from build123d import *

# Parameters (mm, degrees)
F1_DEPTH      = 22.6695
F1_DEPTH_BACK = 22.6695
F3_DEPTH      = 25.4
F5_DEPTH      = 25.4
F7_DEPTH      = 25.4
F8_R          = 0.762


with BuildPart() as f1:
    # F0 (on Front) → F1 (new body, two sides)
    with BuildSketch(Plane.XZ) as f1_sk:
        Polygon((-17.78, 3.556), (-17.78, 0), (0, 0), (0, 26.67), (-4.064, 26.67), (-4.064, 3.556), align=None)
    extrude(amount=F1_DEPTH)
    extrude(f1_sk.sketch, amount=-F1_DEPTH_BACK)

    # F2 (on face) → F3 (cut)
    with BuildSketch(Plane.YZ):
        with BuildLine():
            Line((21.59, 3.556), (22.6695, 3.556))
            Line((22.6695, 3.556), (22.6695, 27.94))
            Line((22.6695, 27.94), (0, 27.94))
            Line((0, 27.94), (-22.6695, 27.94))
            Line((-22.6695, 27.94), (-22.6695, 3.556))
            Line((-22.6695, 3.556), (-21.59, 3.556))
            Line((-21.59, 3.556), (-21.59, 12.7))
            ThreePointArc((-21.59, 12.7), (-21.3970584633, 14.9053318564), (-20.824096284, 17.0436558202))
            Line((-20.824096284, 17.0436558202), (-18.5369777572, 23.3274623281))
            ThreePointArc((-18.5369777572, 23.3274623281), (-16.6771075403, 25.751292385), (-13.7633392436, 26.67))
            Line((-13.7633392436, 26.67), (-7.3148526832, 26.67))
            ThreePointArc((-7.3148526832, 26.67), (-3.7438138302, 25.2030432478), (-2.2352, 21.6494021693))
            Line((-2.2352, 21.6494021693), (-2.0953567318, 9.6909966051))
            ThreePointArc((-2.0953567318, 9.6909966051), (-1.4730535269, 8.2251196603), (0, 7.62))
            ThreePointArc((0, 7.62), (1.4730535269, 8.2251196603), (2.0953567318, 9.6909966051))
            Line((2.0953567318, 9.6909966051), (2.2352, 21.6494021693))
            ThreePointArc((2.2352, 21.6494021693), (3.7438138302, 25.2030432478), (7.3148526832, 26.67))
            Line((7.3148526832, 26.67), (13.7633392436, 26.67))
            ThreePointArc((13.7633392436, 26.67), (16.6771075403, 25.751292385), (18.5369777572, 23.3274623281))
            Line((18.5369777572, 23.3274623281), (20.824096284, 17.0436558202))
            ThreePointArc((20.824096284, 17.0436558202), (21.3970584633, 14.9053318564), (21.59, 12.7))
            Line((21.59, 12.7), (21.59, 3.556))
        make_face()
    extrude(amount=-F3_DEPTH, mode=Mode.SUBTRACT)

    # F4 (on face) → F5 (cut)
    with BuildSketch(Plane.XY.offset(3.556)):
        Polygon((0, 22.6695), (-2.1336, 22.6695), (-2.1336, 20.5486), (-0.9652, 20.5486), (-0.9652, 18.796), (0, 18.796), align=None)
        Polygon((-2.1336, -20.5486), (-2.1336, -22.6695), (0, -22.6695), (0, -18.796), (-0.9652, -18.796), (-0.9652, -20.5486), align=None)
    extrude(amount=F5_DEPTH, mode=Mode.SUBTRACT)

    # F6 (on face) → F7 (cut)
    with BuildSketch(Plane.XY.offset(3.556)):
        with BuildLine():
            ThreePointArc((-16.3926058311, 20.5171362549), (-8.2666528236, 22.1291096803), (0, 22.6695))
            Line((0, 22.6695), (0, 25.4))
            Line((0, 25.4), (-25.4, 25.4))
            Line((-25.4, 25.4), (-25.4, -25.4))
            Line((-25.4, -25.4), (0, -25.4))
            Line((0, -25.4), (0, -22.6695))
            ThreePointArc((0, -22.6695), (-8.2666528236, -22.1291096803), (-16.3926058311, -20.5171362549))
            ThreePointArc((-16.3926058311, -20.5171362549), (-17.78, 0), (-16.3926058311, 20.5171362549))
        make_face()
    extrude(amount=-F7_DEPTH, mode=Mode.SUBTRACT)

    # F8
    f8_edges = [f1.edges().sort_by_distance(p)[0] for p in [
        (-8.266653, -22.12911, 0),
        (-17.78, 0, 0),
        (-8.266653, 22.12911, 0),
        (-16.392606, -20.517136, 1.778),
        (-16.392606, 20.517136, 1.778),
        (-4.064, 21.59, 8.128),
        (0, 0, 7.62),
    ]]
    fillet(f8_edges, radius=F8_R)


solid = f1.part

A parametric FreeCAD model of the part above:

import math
import FreeCAD as App
import Part
import Sketcher

V = App.Vector
Q = App.Units.Quantity


def edges_at(feature, points):
    """Names of the edges that pass closest to the given points."""
    edges = feature.Shape.Edges
    near = lambda p: min(range(len(edges)), key=lambda i: edges[i].distToShape(Part.Vertex(*p))[0])
    return sorted({f"Edge{near(p) + 1}" for p in points})

doc = App.newDocument("Part")
body = doc.addObject("PartDesign::Body", "Body")

# Sketch on XZ plane
sketch1 = body.newObject("Sketcher::SketchObject", "Sketch")
sketch1.AttachmentSupport = (doc.getObject("XZ_Plane"), [""])
sketch1.MapMode = "FlatFace"
sketch1.addGeometry(Part.LineSegment(V(-17.8, 3.6, 0), V(-17.8, 0, 0)), False)
sketch1.addGeometry(Part.LineSegment(V(-17.8, 0, 0), V(0, 0, 0)), False)
sketch1.addGeometry(Part.LineSegment(V(0, 0, 0), V(0, 26.7, 0)), False)
sketch1.addGeometry(Part.LineSegment(V(0, 26.7, 0), V(-4.1, 26.7, 0)), False)
sketch1.addGeometry(Part.LineSegment(V(-4.1, 26.7, 0), V(-4.1, 3.6, 0)), False)
sketch1.addGeometry(Part.LineSegment(V(-4.1, 3.6, 0), V(-17.8, 3.6, 0)), False)
sketch1.addConstraint(Sketcher.Constraint("Coincident", 0, 2, 1, 1))
sketch1.addConstraint(Sketcher.Constraint("Coincident", 1, 2, 2, 1))
sketch1.addConstraint(Sketcher.Constraint("Coincident", 2, 2, 3, 1))
sketch1.addConstraint(Sketcher.Constraint("Coincident", 3, 2, 4, 1))
sketch1.addConstraint(Sketcher.Constraint("Coincident", 4, 2, 5, 1))
sketch1.addConstraint(Sketcher.Constraint("Coincident", 5, 2, 0, 1))
sketch1.addConstraint(Sketcher.Constraint("Vertical", 0))
sketch1.addConstraint(Sketcher.Constraint("Horizontal", 1))
sketch1.addConstraint(Sketcher.Constraint("Vertical", 2))
sketch1.addConstraint(Sketcher.Constraint("Horizontal", 3))
sketch1.addConstraint(Sketcher.Constraint("Vertical", 4))
sketch1.addConstraint(Sketcher.Constraint("Horizontal", 5))
sketch1.addConstraint(Sketcher.Constraint("Coincident", 1, 2, -1, 1))
sketch1.addConstraint(Sketcher.Constraint("DistanceX", 1, 1, 1, 2, Q("0.7 in")))
sketch1.addConstraint(Sketcher.Constraint("DistanceX", 3, 2, 3, 1, Q("0.16 in")))
sketch1.addConstraint(Sketcher.Constraint("DistanceY", 0, 2, 0, 1, Q("0.14 in")))
sketch1.addConstraint(Sketcher.Constraint("DistanceY", 2, 1, 2, 2, Q("1.05 in")))
pad1 = body.newObject("PartDesign::Pad", "Pad")
pad1.Profile = sketch1
pad1.Type = "TwoLengths"
pad1.Length = Q("0.8925 in")
pad1.Length2 = Q("0.8925 in")

# Sketch on YZ plane
sketch2 = body.newObject("Sketcher::SketchObject", "Sketch001")
sketch2.AttachmentSupport = (doc.getObject("YZ_Plane"), [""])
sketch2.MapMode = "FlatFace"
sketch2.addGeometry(Part.LineSegment(V(21.6, 3.6, 0), V(22.7, 3.6, 0)), False)
sketch2.addGeometry(Part.LineSegment(V(22.7, 3.6, 0), V(22.7, 27.9, 0)), False)
sketch2.addGeometry(Part.LineSegment(V(22.7, 27.9, 0), V(-22.7, 27.9, 0)), False)
sketch2.addGeometry(Part.LineSegment(V(-22.7, 27.9, 0), V(-22.7, 3.6, 0)), False)
sketch2.addGeometry(Part.LineSegment(V(-22.7, 3.6, 0), V(-21.6, 3.6, 0)), False)
sketch2.addGeometry(Part.LineSegment(V(-21.6, 3.6, 0), V(-21.6, 12.7, 0)), False)
sketch2.addGeometry(Part.ArcOfCircle(Part.Circle(V(-8.9, 12.7, 0), V(0, 0, 1), 12.7), math.radians(160), math.radians(180)), False)
sketch2.addGeometry(Part.LineSegment(V(-20.8, 17, 0), V(-18.5, 23.3, 0)), False)
sketch2.addGeometry(Part.ArcOfCircle(Part.Circle(V(-13.8, 21.6, 0), V(0, 0, 1), 5.1), math.radians(90), math.radians(160)), False)
sketch2.addGeometry(Part.LineSegment(V(-13.8, 26.7, 0), V(-7.3, 26.7, 0)), False)
sketch2.addGeometry(Part.ArcOfCircle(Part.Circle(V(-7.3, 21.6, 0), V(0, 0, 1), 5.1), math.radians(1), math.radians(90)), False)
sketch2.addGeometry(Part.LineSegment(V(-2.2, 21.6, 0), V(-2.1, 9.7, 0)), False)
sketch2.addGeometry(Part.ArcOfCircle(Part.Circle(V(0, 9.7, 0), V(0, 0, 1), 2.1), math.radians(-179), math.radians(-90)), False)
sketch2.addGeometry(Part.ArcOfCircle(Part.Circle(V(0, 9.7, 0), V(0, 0, 1), 2.1), math.radians(-90), math.radians(-1)), False)
sketch2.addGeometry(Part.LineSegment(V(2.1, 9.7, 0), V(2.2, 21.6, 0)), False)
sketch2.addGeometry(Part.ArcOfCircle(Part.Circle(V(7.3, 21.6, 0), V(0, 0, 1), 5.1), math.radians(90), math.radians(179)), False)
sketch2.addGeometry(Part.LineSegment(V(7.3, 26.7, 0), V(13.8, 26.7, 0)), False)
sketch2.addGeometry(Part.ArcOfCircle(Part.Circle(V(13.8, 21.6, 0), V(0, 0, 1), 5.1), math.radians(20), math.radians(90)), False)
sketch2.addGeometry(Part.LineSegment(V(18.5, 23.3, 0), V(20.8, 17, 0)), False)
sketch2.addGeometry(Part.ArcOfCircle(Part.Circle(V(8.9, 12.7, 0), V(0, 0, 1), 12.7), math.radians(0), math.radians(20)), False)
sketch2.addGeometry(Part.LineSegment(V(21.6, 12.7, 0), V(21.6, 3.6, 0)), False)
sketch2.addConstraint(Sketcher.Constraint("Coincident", 0, 2, 1, 1))
sketch2.addConstraint(Sketcher.Constraint("Coincident", 1, 2, 2, 1))
sketch2.addConstraint(Sketcher.Constraint("Coincident", 2, 2, 3, 1))
sketch2.addConstraint(Sketcher.Constraint("Coincident", 3, 2, 4, 1))
sketch2.addConstraint(Sketcher.Constraint("Coincident", 4, 2, 5, 1))
sketch2.addConstraint(Sketcher.Constraint("Tangent", 5, 2, 6, 2))
sketch2.addConstraint(Sketcher.Constraint("Tangent", 6, 1, 7, 1))
sketch2.addConstraint(Sketcher.Constraint("Tangent", 7, 2, 8, 2))
sketch2.addConstraint(Sketcher.Constraint("Tangent", 8, 1, 9, 1))
sketch2.addConstraint(Sketcher.Constraint("Tangent", 9, 2, 10, 2))
sketch2.addConstraint(Sketcher.Constraint("Tangent", 10, 1, 11, 1))
sketch2.addConstraint(Sketcher.Constraint("Tangent", 11, 2, 12, 1))
sketch2.addConstraint(Sketcher.Constraint("Tangent", 12, 2, 13, 1))
sketch2.addConstraint(Sketcher.Constraint("Tangent", 13, 2, 14, 1))
sketch2.addConstraint(Sketcher.Constraint("Tangent", 14, 2, 15, 2))
sketch2.addConstraint(Sketcher.Constraint("Tangent", 15, 1, 16, 1))
sketch2.addConstraint(Sketcher.Constraint("Tangent", 16, 2, 17, 2))
sketch2.addConstraint(Sketcher.Constraint("Tangent", 17, 1, 18, 1))
sketch2.addConstraint(Sketcher.Constraint("Tangent", 18, 2, 19, 2))
sketch2.addConstraint(Sketcher.Constraint("Tangent", 19, 1, 20, 1))
sketch2.addConstraint(Sketcher.Constraint("Coincident", 20, 2, 0, 1))
sketch2.addConstraint(Sketcher.Constraint("Horizontal", 0))
sketch2.addConstraint(Sketcher.Constraint("Vertical", 1))
sketch2.addConstraint(Sketcher.Constraint("Horizontal", 2))
sketch2.addConstraint(Sketcher.Constraint("Vertical", 3))
sketch2.addConstraint(Sketcher.Constraint("Horizontal", 4))
sketch2.addConstraint(Sketcher.Constraint("Vertical", 5))
sketch2.addConstraint(Sketcher.Constraint("Horizontal", 9))
sketch2.addConstraint(Sketcher.Constraint("Horizontal", 16))
sketch2.addConstraint(Sketcher.Constraint("Vertical", 20))
sketch2.addConstraint(Sketcher.Constraint("Equal", 8, 10))
sketch2.addConstraint(Sketcher.Constraint("Equal", 12, 13))
sketch2.addConstraint(Sketcher.Constraint("Equal", 10, 15))
sketch2.addConstraint(Sketcher.Constraint("Equal", 15, 17))
sketch2.addConstraint(Sketcher.Constraint("Equal", 6, 19))
sketch2.addConstraint(Sketcher.Constraint("Symmetric", 10, 3, 15, 3, -2))
sketch2.addConstraint(Sketcher.Constraint("Symmetric", 6, 3, 19, 3, -2))
sketch2.addConstraint(Sketcher.Constraint("Symmetric", 0, 2, 3, 2, -2))
sketch2.addConstraint(Sketcher.Constraint("PointOnObject", 12, 3, -2))
sketch2.addConstraint(Sketcher.Constraint("PointOnObject", 12, 2, -2))
sketch2.addConstraint(Sketcher.Constraint("Horizontal", 7, 2, 17, 1))
sketch2.addConstraint(Sketcher.Constraint("Radius", 6, Q("0.5 in")))
sketch2.addConstraint(Sketcher.Constraint("Radius", 8, Q("0.2 in")))
sketch2.addConstraint(Sketcher.Constraint("Angle", 7, Q("70 deg")))
sketch2.addConstraint(Sketcher.Constraint("DistanceY", 1, 1, 1, 2, Q("0.96 in")))
sketch2.addConstraint(Sketcher.Constraint("DistanceY", 5, 1, 5, 2, Q("0.36 in")))
sketch2.addConstraint(Sketcher.Constraint("DistanceY", -1, 1, 6, 3, Q("0.5 in")))
sketch2.addConstraint(Sketcher.Constraint("DistanceY", -1, 1, 12, 2, Q("0.3 in")))
sketch2.addConstraint(Sketcher.Constraint("Radius", 12, Q("0.0825 in")))
sketch2.addConstraint(Sketcher.Constraint("DistanceX", 6, 3, 19, 3, Q("0.7 in")))
sketch2.addConstraint(Sketcher.Constraint("DistanceX", 2, 2, 2, 1, Q("1.785 in")))
sketch2.addConstraint(Sketcher.Constraint("DistanceY", -1, 1, 8, 3, Q("0.85 in")))
sketch2.addConstraint(Sketcher.Constraint("Angle", 11, Q("-89.330006 deg")))
pocket1 = body.newObject("PartDesign::Pocket", "Pocket")
pocket1.Profile = sketch2
pocket1.Length = Q("1 in")

# Sketch on XY plane
sketch3 = body.newObject("Sketcher::SketchObject", "Sketch002")
sketch3.AttachmentSupport = (doc.getObject("XY_Plane"), [""])
sketch3.MapMode = "FlatFace"
sketch3.AttachmentOffset = App.Placement(V(0, 0, 0.14 * 25.4), App.Rotation())
sketch3.addGeometry(Part.LineSegment(V(0, 22.7, 0), V(-2.1, 22.7, 0)), False)
sketch3.addGeometry(Part.LineSegment(V(-2.1, 22.7, 0), V(-2.1, 20.5, 0)), False)
sketch3.addGeometry(Part.LineSegment(V(-2.1, 20.5, 0), V(-1, 20.5, 0)), False)
sketch3.addGeometry(Part.LineSegment(V(-1, 20.5, 0), V(-1, 18.8, 0)), False)
sketch3.addGeometry(Part.LineSegment(V(-1, 18.8, 0), V(0, 18.8, 0)), False)
sketch3.addGeometry(Part.LineSegment(V(0, 18.8, 0), V(0, 22.7, 0)), False)
sketch3.addGeometry(Part.LineSegment(V(-2.1, -20.5, 0), V(-2.1, -22.7, 0)), False)
sketch3.addGeometry(Part.LineSegment(V(-2.1, -22.7, 0), V(0, -22.7, 0)), False)
sketch3.addGeometry(Part.LineSegment(V(0, -22.7, 0), V(0, -18.8, 0)), False)
sketch3.addGeometry(Part.LineSegment(V(0, -18.8, 0), V(-1, -18.8, 0)), False)
sketch3.addGeometry(Part.LineSegment(V(-1, -18.8, 0), V(-1, -20.5, 0)), False)
sketch3.addGeometry(Part.LineSegment(V(-1, -20.5, 0), V(-2.1, -20.5, 0)), False)
sketch3.addConstraint(Sketcher.Constraint("Coincident", 0, 2, 1, 1))
sketch3.addConstraint(Sketcher.Constraint("Coincident", 1, 2, 2, 1))
sketch3.addConstraint(Sketcher.Constraint("Coincident", 2, 2, 3, 1))
sketch3.addConstraint(Sketcher.Constraint("Coincident", 3, 2, 4, 1))
sketch3.addConstraint(Sketcher.Constraint("Coincident", 4, 2, 5, 1))
sketch3.addConstraint(Sketcher.Constraint("Coincident", 5, 2, 0, 1))
sketch3.addConstraint(Sketcher.Constraint("Coincident", 6, 2, 7, 1))
sketch3.addConstraint(Sketcher.Constraint("Coincident", 7, 2, 8, 1))
sketch3.addConstraint(Sketcher.Constraint("Coincident", 8, 2, 9, 1))
sketch3.addConstraint(Sketcher.Constraint("Coincident", 9, 2, 10, 1))
sketch3.addConstraint(Sketcher.Constraint("Coincident", 10, 2, 11, 1))
sketch3.addConstraint(Sketcher.Constraint("Coincident", 11, 2, 6, 1))
sketch3.addConstraint(Sketcher.Constraint("Horizontal", 0))
sketch3.addConstraint(Sketcher.Constraint("Vertical", 1))
sketch3.addConstraint(Sketcher.Constraint("Horizontal", 2))
sketch3.addConstraint(Sketcher.Constraint("Vertical", 3))
sketch3.addConstraint(Sketcher.Constraint("Horizontal", 4))
sketch3.addConstraint(Sketcher.Constraint("Vertical", 5))
sketch3.addConstraint(Sketcher.Constraint("Vertical", 6))
sketch3.addConstraint(Sketcher.Constraint("Horizontal", 7))
sketch3.addConstraint(Sketcher.Constraint("Vertical", 8))
sketch3.addConstraint(Sketcher.Constraint("Horizontal", 9))
sketch3.addConstraint(Sketcher.Constraint("Vertical", 10))
sketch3.addConstraint(Sketcher.Constraint("Horizontal", 11))
sketch3.addConstraint(Sketcher.Constraint("Symmetric", 5, 2, 7, 2, -1, 1))
sketch3.addConstraint(Sketcher.Constraint("Symmetric", 4, 2, 8, 2, -1))
sketch3.addConstraint(Sketcher.Constraint("Symmetric", 2, 2, 10, 2, -1))
sketch3.addConstraint(Sketcher.Constraint("Vertical", 1, 2, 6, 2))
sketch3.addConstraint(Sketcher.Constraint("DistanceX", 0, 2, 0, 1, Q("0.084 in")))
sketch3.addConstraint(Sketcher.Constraint("DistanceX", 2, 1, 2, 2, Q("0.046 in")))
sketch3.addConstraint(Sketcher.Constraint("DistanceY", 3, 2, 3, 1, Q("0.069 in")))
sketch3.addConstraint(Sketcher.Constraint("DistanceY", -1, 1, 3, 2, Q("0.74 in")))
sketch3.addConstraint(Sketcher.Constraint("DistanceY", 1, 2, 1, 1, Q("0.0835 in")))
pocket2 = body.newObject("PartDesign::Pocket", "Pocket001")
pocket2.Profile = sketch3
pocket2.Length = Q("1 in")
pocket2.Reversed = True

# Sketch on XY plane
sketch4 = body.newObject("Sketcher::SketchObject", "Sketch003")
sketch4.AttachmentSupport = (doc.getObject("XY_Plane"), [""])
sketch4.MapMode = "FlatFace"
sketch4.AttachmentOffset = App.Placement(V(0, 0, 0.14 * 25.4), App.Rotation())
sketch4.addGeometry(Part.ArcOfCircle(Part.Circle(V(0, -40.8, 0), V(0, 0, 1), 63.5), math.radians(90), math.radians(104.96)), False)
sketch4.addGeometry(Part.LineSegment(V(0, 22.7, 0), V(0, 25.4, 0)), False)
sketch4.addGeometry(Part.LineSegment(V(0, 25.4, 0), V(-25.4, 25.4, 0)), False)
sketch4.addGeometry(Part.LineSegment(V(-25.4, 25.4, 0), V(-25.4, -25.4, 0)), False)
sketch4.addGeometry(Part.LineSegment(V(-25.4, -25.4, 0), V(0, -25.4, 0)), False)
sketch4.addGeometry(Part.LineSegment(V(0, -25.4, 0), V(0, -22.7, 0)), False)
sketch4.addGeometry(Part.ArcOfCircle(Part.Circle(V(0, 40.8, 0), V(0, 0, 1), 63.5), math.radians(-104.96), math.radians(-90)), False)
sketch4.addGeometry(Part.ArcOfCircle(Part.Circle(V(134.6, 0, 0), V(0, 0, 1), 152.4), math.radians(172.26), math.radians(187.74)), False)
sketch4.addConstraint(Sketcher.Constraint("Coincident", 0, 1, 1, 1))
sketch4.addConstraint(Sketcher.Constraint("Coincident", 1, 2, 2, 1))
sketch4.addConstraint(Sketcher.Constraint("Coincident", 2, 2, 3, 1))
sketch4.addConstraint(Sketcher.Constraint("Coincident", 3, 2, 4, 1))
sketch4.addConstraint(Sketcher.Constraint("Coincident", 4, 2, 5, 1))
sketch4.addConstraint(Sketcher.Constraint("Coincident", 5, 2, 6, 2))
sketch4.addConstraint(Sketcher.Constraint("Coincident", 6, 1, 7, 2))
sketch4.addConstraint(Sketcher.Constraint("Coincident", 7, 1, 0, 2))
sketch4.addConstraint(Sketcher.Constraint("Vertical", 1))
sketch4.addConstraint(Sketcher.Constraint("Horizontal", 2))
sketch4.addConstraint(Sketcher.Constraint("Vertical", 3))
sketch4.addConstraint(Sketcher.Constraint("Horizontal", 4))
sketch4.addConstraint(Sketcher.Constraint("Vertical", 5))
sketch4.addConstraint(Sketcher.Constraint("Equal", 0, 6))
sketch4.addConstraint(Sketcher.Constraint("Symmetric", 0, 3, 6, 3, -1, 1))
sketch4.addConstraint(Sketcher.Constraint("Symmetric", 1, 2, 4, 2, -1, 1))
sketch4.addConstraint(Sketcher.Constraint("Symmetric", 6, 1, 7, 1, -1))
sketch4.addConstraint(Sketcher.Constraint("PointOnObject", 0, 1, -2))
sketch4.addConstraint(Sketcher.Constraint("Radius", 7, Q("6 in")))
sketch4.addConstraint(Sketcher.Constraint("Radius", 0, Q("2.5 in")))
sketch4.addConstraint(Sketcher.Constraint("DistanceX", 2, 2, 2, 1, Q("1 in")))
sketch4.addConstraint(Sketcher.Constraint("DistanceY", 3, 2, 3, 1, Q("2 in")))
sketch4.addConstraint(Sketcher.Constraint("DistanceX", -1, 1, 7, 3, Q("5.3 in")))
sketch4.addConstraint(Sketcher.Constraint("DistanceY", 1, 1, 1, 2, Q("0.1075 in")))
pocket3 = body.newObject("PartDesign::Pocket", "Pocket002")
pocket3.Profile = sketch4
pocket3.Length = Q("1 in")
doc.recompute()

fillet = body.newObject("PartDesign::Fillet", "Fillet")
fillet.Base = (pocket3, edges_at(pocket3, [
    (-8.267, -22.129, 0),
    (-17.78, 0, 0),
    (-8.267, 22.129, 0),
    (-16.393, -20.517, 1.778),
    (-16.393, 20.517, 1.778),
    (-4.064, 21.59, 8.128),
    (0, 1.473, 8.225),
]))
fillet.Radius = Q("0.03 in")

doc.recompute()
